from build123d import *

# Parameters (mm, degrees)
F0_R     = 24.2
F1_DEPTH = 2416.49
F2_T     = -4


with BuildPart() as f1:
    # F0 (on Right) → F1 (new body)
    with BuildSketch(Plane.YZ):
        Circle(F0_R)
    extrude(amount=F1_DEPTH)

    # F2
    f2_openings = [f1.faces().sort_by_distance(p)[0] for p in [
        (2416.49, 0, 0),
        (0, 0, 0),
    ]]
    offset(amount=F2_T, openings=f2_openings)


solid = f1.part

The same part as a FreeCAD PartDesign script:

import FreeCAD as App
import Part
import Sketcher


def faces_at(feature, points):
    """Names of the faces that lie closest to the given points."""
    faces = feature.Shape.Faces
    near = lambda p: min(range(len(faces)), key=lambda i: faces[i].distToShape(Part.Vertex(*p))[0])
    return sorted({f"Face{near(p) + 1}" for p in points})

doc = App.newDocument("Part")
body = doc.addObject("PartDesign::Body", "Body")

# Sketch on YZ plane
sketch1 = body.newObject("Sketcher::SketchObject", "Sketch")
sketch1.AttachmentSupport = (doc.getObject("YZ_Plane"), [""])
sketch1.MapMode = "FlatFace"
sketch1.addGeometry(Part.Circle(App.Vector(0, 0, 0), App.Vector(0, 0, 1), 24), False)
sketch1.addConstraint(Sketcher.Constraint("Coincident", 0, 3, -1, 1))
sketch1.addConstraint(Sketcher.Constraint("Diameter", 0, 48.4))
pad1 = body.newObject("PartDesign::Pad", "Pad")
pad1.Profile = sketch1
pad1.Length = 2416.49
doc.recompute()

thickness = body.newObject("PartDesign::Thickness", "Thickness")
thickness.Base = (pad1, faces_at(pad1, [(2416.49, 0, 0), (0, 0, 0)]))
thickness.Value = 4
thickness.Reversed = True
thickness.Join = "Arc"

doc.recompute()
